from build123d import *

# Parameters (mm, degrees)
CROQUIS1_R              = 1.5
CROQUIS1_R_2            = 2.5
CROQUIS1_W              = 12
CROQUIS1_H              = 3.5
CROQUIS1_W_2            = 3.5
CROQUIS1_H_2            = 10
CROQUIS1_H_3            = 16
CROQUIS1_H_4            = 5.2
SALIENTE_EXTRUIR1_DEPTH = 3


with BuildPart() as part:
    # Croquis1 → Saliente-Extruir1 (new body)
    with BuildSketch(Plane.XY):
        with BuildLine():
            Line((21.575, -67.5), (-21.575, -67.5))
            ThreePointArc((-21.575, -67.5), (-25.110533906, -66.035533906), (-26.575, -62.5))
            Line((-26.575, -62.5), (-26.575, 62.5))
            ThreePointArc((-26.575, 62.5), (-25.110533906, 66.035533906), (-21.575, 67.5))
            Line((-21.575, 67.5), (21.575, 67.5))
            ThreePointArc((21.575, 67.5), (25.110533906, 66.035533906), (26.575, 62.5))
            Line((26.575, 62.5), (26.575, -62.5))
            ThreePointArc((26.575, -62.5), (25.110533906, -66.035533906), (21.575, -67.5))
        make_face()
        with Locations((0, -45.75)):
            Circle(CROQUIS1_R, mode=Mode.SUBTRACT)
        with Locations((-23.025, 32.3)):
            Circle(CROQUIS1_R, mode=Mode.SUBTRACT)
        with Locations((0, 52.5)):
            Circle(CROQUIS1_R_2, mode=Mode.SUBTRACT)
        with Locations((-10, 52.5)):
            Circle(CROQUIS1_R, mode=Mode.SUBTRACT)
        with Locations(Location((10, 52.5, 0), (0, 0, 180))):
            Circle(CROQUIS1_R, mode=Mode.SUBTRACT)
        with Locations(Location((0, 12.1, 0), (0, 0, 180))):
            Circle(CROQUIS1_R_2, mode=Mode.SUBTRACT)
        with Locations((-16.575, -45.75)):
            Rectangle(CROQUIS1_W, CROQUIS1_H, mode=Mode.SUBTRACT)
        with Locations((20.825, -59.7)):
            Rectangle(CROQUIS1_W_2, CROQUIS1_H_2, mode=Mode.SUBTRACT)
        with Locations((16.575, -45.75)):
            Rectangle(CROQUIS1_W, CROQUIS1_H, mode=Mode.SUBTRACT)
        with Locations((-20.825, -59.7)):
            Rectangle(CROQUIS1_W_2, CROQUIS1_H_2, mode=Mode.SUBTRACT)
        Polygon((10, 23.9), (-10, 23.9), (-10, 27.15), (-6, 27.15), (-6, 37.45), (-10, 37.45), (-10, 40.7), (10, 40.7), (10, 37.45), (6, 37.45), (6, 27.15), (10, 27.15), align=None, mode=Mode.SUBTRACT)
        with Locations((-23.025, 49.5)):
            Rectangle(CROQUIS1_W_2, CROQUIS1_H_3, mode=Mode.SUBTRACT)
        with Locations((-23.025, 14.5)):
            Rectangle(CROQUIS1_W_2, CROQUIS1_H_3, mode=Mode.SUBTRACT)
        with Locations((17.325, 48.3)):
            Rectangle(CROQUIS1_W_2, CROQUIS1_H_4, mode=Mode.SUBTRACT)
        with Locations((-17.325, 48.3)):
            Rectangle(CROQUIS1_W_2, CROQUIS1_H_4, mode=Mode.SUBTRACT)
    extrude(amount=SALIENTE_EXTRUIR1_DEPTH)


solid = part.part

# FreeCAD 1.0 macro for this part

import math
import FreeCAD as App
import Part
import Sketcher
from FreeCAD import Vector


def add_polygon(sketch, points):
    """Adds a closed chain of lines whose ends are joined by coincident constraints."""
    first, n = sketch.GeometryCount, len(points)
    for a, b in zip(points, points[1:] + points[:1]):
        sketch.addGeometry(Part.LineSegment(App.Vector(*a, 0), App.Vector(*b, 0)), False)
    for i in range(n):
        sketch.addConstraint(Sketcher.Constraint("Coincident", first + i, 2, first + (i + 1) % n, 1))

doc = App.newDocument("Part")
body = doc.addObject("PartDesign::Body", "Body")

# Sketch on XY plane
sketch1 = doc.addObject("Sketcher::SketchObject", "Sketch")
body.addObject(sketch1)
sketch1.AttachmentSupport = (doc.XY_Plane, [""])
sketch1.MapMode = "FlatFace"
sketch1.addGeometry(Part.LineSegment(Vector(-21.6, -67.5, 0), Vector(21.6, -67.5, 0)), False)  # 0
sketch1.addGeometry(Part.ArcOfCircle(Part.Circle(Vector(21.6, -62.5, 0), Vector(0, 0, 1), 5), math.radians(-90), math.radians(0)), False)  # 1
sketch1.addGeometry(Part.LineSegment(Vector(26.6, -62.5, 0), Vector(26.6, 62.5, 0)), False)  # 2
sketch1.addGeometry(Part.ArcOfCircle(Part.Circle(Vector(21.6, 62.5, 0), Vector(0, 0, 1), 5), math.radians(0), math.radians(90)), False)  # 3
sketch1.addGeometry(Part.LineSegment(Vector(21.6, 67.5, 0), Vector(-21.6, 67.5, 0)), False)  # 4
sketch1.addGeometry(Part.ArcOfCircle(Part.Circle(Vector(-21.6, 62.5, 0), Vector(0, 0, 1), 5), math.radians(90), math.radians(180)), False)  # 5
sketch1.addGeometry(Part.LineSegment(Vector(-26.6, 62.5, 0), Vector(-26.6, -62.5, 0)), False)  # 6
sketch1.addGeometry(Part.ArcOfCircle(Part.Circle(Vector(-21.6, -62.5, 0), Vector(0, 0, 1), 5), math.radians(180), math.radians(270)), False)  # 7
add_polygon(sketch1, [(19.1, -64.7), (19.1, -54.7), (22.6, -54.7), (22.6, -64.7)])  # lines 8-11
add_polygon(sketch1, [(10.6, -47.5), (10.6, -44), (22.6, -44), (22.6, -47.5)])  # lines 12-15
sketch1.addGeometry(Part.Circle(Vector(0, -45.8, 0), Vector(0, 0, 1), 1.5), False)  # 16
add_polygon(sketch1, [(-22.6, -64.7), (-22.6, -54.7), (-19.1, -54.7), (-19.1, -64.7)])  # lines 17-20
add_polygon(sketch1, [(-22.6, -47.5), (-22.6, -44), (-10.6, -44), (-10.6, -47.5)])  # lines 21-24
sketch1.addGeometry(Part.Circle(Vector(0, 12.1, 0), Vector(0, 0, 1), 2.5), False)  # 25
add_polygon(sketch1, [(15.6, 45.7), (15.6, 50.9), (19.1, 50.9), (19.1, 45.7)])  # lines 26-29
add_polygon(sketch1, [(10, 23.9), (-10, 23.9), (-10, 27.1), (-6, 27.1), (-6, 37.5), (-10, 37.5), (-10, 40.7), (10, 40.7), (10, 37.5), (6, 37.5), (6, 27.1), (10, 27.1)])  # lines 30-41
sketch1.addGeometry(Part.Circle(Vector(10, 52.5, 0), Vector(0, 0, 1), 1.5), False)  # 42
sketch1.addGeometry(Part.Circle(Vector(0, 52.5, 0), Vector(0, 0, 1), 2.5), False)  # 43
add_polygon(sketch1, [(-24.8, 6.5), (-24.8, 22.5), (-21.3, 22.5), (-21.3, 6.5)])  # lines 44-47
sketch1.addGeometry(Part.Circle(Vector(-10, 52.5, 0), Vector(0, 0, 1), 1.5), False)  # 48
sketch1.addGeometry(Part.Circle(Vector(-23, 32.3, 0), Vector(0, 0, 1), 1.5), False)  # 49
add_polygon(sketch1, [(-19.1, 45.7), (-19.1, 50.9), (-15.6, 50.9), (-15.6, 45.7)])  # lines 50-53
add_polygon(sketch1, [(-24.8, 41.5), (-24.8, 57.5), (-21.3, 57.5), (-21.3, 41.5)])  # lines 54-57
sketch1.addConstraint([
    Sketcher.Constraint("Tangent", 0, 2, 1, 1),
    Sketcher.Constraint("Tangent", 1, 2, 2, 1),
    Sketcher.Constraint("Tangent", 2, 2, 3, 1),
    Sketcher.Constraint("Tangent", 3, 2, 4, 1),
    Sketcher.Constraint("Tangent", 4, 2, 5, 1),
    Sketcher.Constraint("Tangent", 5, 2, 6, 1),
    Sketcher.Constraint("Tangent", 6, 2, 7, 1),
    Sketcher.Constraint("Tangent", 7, 2, 0, 1),
    Sketcher.Constraint("Horizontal", 0),
    Sketcher.Constraint("Vertical", 2),
    Sketcher.Constraint("Horizontal", 4),
    Sketcher.Constraint("Vertical", 6),
    Sketcher.Constraint("Vertical", 8),
    Sketcher.Constraint("Horizontal", 9),
    Sketcher.Constraint("Vertical", 10),
    Sketcher.Constraint("Horizontal", 11),
    Sketcher.Constraint("Vertical", 12),
    Sketcher.Constraint("Horizontal", 13),
    Sketcher.Constraint("Vertical", 14),
    Sketcher.Constraint("Horizontal", 15),
    Sketcher.Constraint("Vertical", 17),
    Sketcher.Constraint("Horizontal", 18),
    Sketcher.Constraint("Vertical", 19),
    Sketcher.Constraint("Horizontal", 20),
    Sketcher.Constraint("Vertical", 21),
    Sketcher.Constraint("Horizontal", 22),
    Sketcher.Constraint("Vertical", 23),
    Sketcher.Constraint("Horizontal", 24),
    Sketcher.Constraint("Vertical", 26),
    Sketcher.Constraint("Horizontal", 27),
    Sketcher.Constraint("Vertical", 28),
    Sketcher.Constraint("Horizontal", 29),
    Sketcher.Constraint("Horizontal", 30),
    Sketcher.Constraint("Vertical", 31),
    Sketcher.Constraint("Horizontal", 32),
    Sketcher.Constraint("Vertical", 33),
    Sketcher.Constraint("Horizontal", 34),
    Sketcher.Constraint("Vertical", 35),
    Sketcher.Constraint("Horizontal", 36),
    Sketcher.Constraint("Vertical", 37),
    Sketcher.Constraint("Horizontal", 38),
    Sketcher.Constraint("Vertical", 39),
    Sketcher.Constraint("Horizontal", 40),
    Sketcher.Constraint("Vertical", 41),
    Sketcher.Constraint("Vertical", 44),
    Sketcher.Constraint("Horizontal", 45),
    Sketcher.Constraint("Vertical", 46),
    Sketcher.Constraint("Horizontal", 47),
    Sketcher.Constraint("Vertical", 50),
    Sketcher.Constraint("Horizontal", 51),
    Sketcher.Constraint("Vertical", 52),
    Sketcher.Constraint("Horizontal", 53),
    Sketcher.Constraint("Vertical", 54),
    Sketcher.Constraint("Horizontal", 55),
    Sketcher.Constraint("Vertical", 56),
    Sketcher.Constraint("Horizontal", 57),
    Sketcher.Constraint("Equal", 1, 3),
    Sketcher.Constraint("Equal", 3, 5),
    Sketcher.Constraint("Equal", 5, 7),
    Sketcher.Constraint("Equal", 16, 42),
    Sketcher.Constraint("Equal", 25, 43),
    Sketcher.Constraint("Equal", 42, 48),
    Sketcher.Constraint("Equal", 48, 49),
    Sketcher.Constraint("Symmetric", 1, 3, 5, 3, -1, 1),
    Sketcher.Constraint("Symmetric", 42, 3, 48, 3, -2),
    Sketcher.Constraint("Symmetric", 9, 2, 17, 2, -2),
    Sketcher.Constraint("Symmetric", 11, 2, 19, 2, -2),
    Sketcher.Constraint("Symmetric", 13, 2, 21, 2, -2),
    Sketcher.Constraint("Symmetric", 15, 2, 23, 2, -2),
    Sketcher.Constraint("Symmetric", 34, 2, 37, 2, -2),
    Sketcher.Constraint("Symmetric", 32, 2, 39, 2, -2),
    Sketcher.Constraint("Symmetric", 27, 2, 50, 2, -2),
    Sketcher.Constraint("Symmetric", 29, 2, 52, 2, -2),
    Sketcher.Constraint("PointOnObject", 16, 3, -2),
    Sketcher.Constraint("PointOnObject", 25, 3, -2),
    Sketcher.Constraint("PointOnObject", 43, 3, -2),
    Sketcher.Constraint("Horizontal", 42, 3, 43, 3),
    Sketcher.Constraint("Vertical", 10, 2, 13, 2),
    Sketcher.Constraint("Vertical", 11, 2, 27, 2),
    Sketcher.Constraint("Vertical", 48, 3, 30, 2),
    Sketcher.Constraint("Vertical", 31, 2, 34, 2),
    Sketcher.Constraint("Vertical", 37, 2, 40, 2),
    Sketcher.Constraint("Vertical", 47, 2, 54, 2),
    Sketcher.Constraint("Vertical", 46, 2, 55, 2),
    Sketcher.Constraint("Equal", 20, 27),
    Sketcher.Constraint("Equal", 29, 45),
    Sketcher.Constraint("Equal", 57, 12),
    Sketcher.Constraint("Equal", 31, 35),
    Sketcher.Constraint("Equal", 46, 54),
    Sketcher.Constraint("Diameter", 16, 3.0),
    Sketcher.Constraint("Diameter", 25, 5.0),
    Sketcher.Constraint("Radius", 1, 5.0),
    Sketcher.Constraint("DistanceX", 13, 1, 13, 2, 12.0),
    Sketcher.Constraint("DistanceX", 30, 2, 30, 1, 20.0),
    Sketcher.Constraint("DistanceX", 32, 1, 32, 2, 4.0),
    Sketcher.Constraint("DistanceY", 2, 1, 2, 2, 125.0),
    Sketcher.Constraint("DistanceY", 8, 1, 8, 2, 10.0),
    Sketcher.Constraint("DistanceY", 44, 1, 44, 2, 16.0),
    Sketcher.Constraint("DistanceX", 9, 1, 9, 2, 3.5),
    Sketcher.Constraint("DistanceY", 26, 1, 26, 2, 5.2),
    Sketcher.Constraint("DistanceY", 33, 1, 33, 2, 10.3),
    Sketcher.Constraint("DistanceY", 12, 2, -1, 1, 44.0),
    Sketcher.Constraint("DistanceX", 0, 1, 0, 2, 43.15),
    Sketcher.Constraint("DistanceY", 31, 1, 31, 2, 3.25),
    Sketcher.Constraint("DistanceY", -1, 1, 25, 3, 12.1),
    Sketcher.Constraint("DistanceY", -1, 1, 42, 3, 52.5),
    Sketcher.Constraint("DistanceY", -1, 1, 49, 3, 32.3),
    Sketcher.Constraint("DistanceY", 8, 2, -1, 1, 54.7),
    Sketcher.Constraint("DistanceY", -1, 1, 26, 2, 50.9),
    Sketcher.Constraint("DistanceY", -1, 1, 30, 2, 23.9),
    Sketcher.Constraint("DistanceY", -1, 1, 44, 2, 22.5),
    Sketcher.Constraint("DistanceY", -1, 1, 54, 2, 57.5),
    Sketcher.Constraint("DistanceY", 16, 3, -1, 1, 45.75),
    Sketcher.Constraint("DistanceX", 49, 3, -1, 1, 23.025),
    Sketcher.Constraint("DistanceX", -1, 1, 8, 2, 19.075),
    Sketcher.Constraint("DistanceX", 44, 2, -1, 1, 24.775),
])
pad1 = doc.addObject("PartDesign::Pad", "Pad")
body.addObject(pad1)
pad1.Profile = sketch1
pad1.Length = 3

doc.recompute()
